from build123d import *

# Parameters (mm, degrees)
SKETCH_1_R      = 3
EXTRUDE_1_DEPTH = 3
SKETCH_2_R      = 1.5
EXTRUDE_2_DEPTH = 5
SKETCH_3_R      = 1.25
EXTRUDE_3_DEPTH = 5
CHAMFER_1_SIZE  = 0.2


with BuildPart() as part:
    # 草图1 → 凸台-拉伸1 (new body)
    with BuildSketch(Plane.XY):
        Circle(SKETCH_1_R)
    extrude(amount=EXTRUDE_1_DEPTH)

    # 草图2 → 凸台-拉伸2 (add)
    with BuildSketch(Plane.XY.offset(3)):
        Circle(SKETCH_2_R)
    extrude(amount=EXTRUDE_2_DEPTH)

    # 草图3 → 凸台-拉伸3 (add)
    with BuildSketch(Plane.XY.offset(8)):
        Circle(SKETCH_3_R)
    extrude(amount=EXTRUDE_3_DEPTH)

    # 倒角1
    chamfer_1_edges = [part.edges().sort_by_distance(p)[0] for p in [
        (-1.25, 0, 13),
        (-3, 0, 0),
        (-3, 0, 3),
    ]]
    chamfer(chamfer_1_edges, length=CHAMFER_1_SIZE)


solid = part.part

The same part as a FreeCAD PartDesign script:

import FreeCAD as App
import Part
import Sketcher
Q = App.Units.Quantity


def edges_at(feature, points):
    """Names of the edges that pass closest to the given points."""
    edges = feature.Shape.Edges
    near = lambda p: min(range(len(edges)), key=lambda i: edges[i].distToShape(Part.Vertex(*p))[0])
    return sorted({f"Edge{near(p) + 1}" for p in points})

doc = App.newDocument("Part")
body = doc.addObject("PartDesign::Body", "Body")

# Sketch on XY plane
sketch1 = body.newObject("Sketcher::SketchObject", "Sketch")
sketch1.AttachmentSupport = (doc.getObject("XY_Plane"), [""])
sketch1.MapMode = "FlatFace"
sketch1.addGeometry(Part.Circle(App.Vector(0, 0, 0), App.Vector(0, 0, 1), 3), False)
sketch1.addConstraint([
    Sketcher.Constraint("Coincident", 0, 3, -1, 1),
    Sketcher.Constraint("Diameter", 0, Q("6 mm")),
])
pad1 = body.newObject("PartDesign::Pad", "Pad")
pad1.Profile = sketch1
pad1.Length = 3

# Sketch on XY plane
sketch2 = body.newObject("Sketcher::SketchObject", "Sketch001")
sketch2.AttachmentSupport = (doc.getObject("XY_Plane"), [""])
sketch2.MapMode = "FlatFace"
sketch2.AttachmentOffset = App.Placement(App.Vector(0, 0, 3), App.Rotation())
sketch2.addGeometry(Part.Circle(App.Vector(0, 0, 0), App.Vector(0, 0, 1), 1.5), False)
sketch2.addConstraint([
    Sketcher.Constraint("Coincident", 0, 3, -1, 1),
    Sketcher.Constraint("Diameter", 0, Q("3 mm")),
])
pad2 = body.newObject("PartDesign::Pad", "Pad001")
pad2.Profile = sketch2
pad2.Length = 5

# Sketch on XY plane
sketch3 = body.newObject("Sketcher::SketchObject", "Sketch002")
sketch3.AttachmentSupport = (doc.getObject("XY_Plane"), [""])
sketch3.MapMode = "FlatFace"
sketch3.AttachmentOffset = App.Placement(App.Vector(0, 0, 8), App.Rotation())
sketch3.addGeometry(Part.Circle(App.Vector(0, 0, 0), App.Vector(0, 0, 1), 1.25), False)
sketch3.addConstraint([
    Sketcher.Constraint("Coincident", 0, 3, -1, 1),
    Sketcher.Constraint("Diameter", 0, Q("2.5 mm")),
])
pad3 = body.newObject("PartDesign::Pad", "Pad002")
pad3.Profile = sketch3
pad3.Length = 5
doc.recompute()

chamfer = body.newObject("PartDesign::Chamfer", "Chamfer")
chamfer.Base = (pad3, edges_at(pad3, [(-1.25, 0, 13), (-3, 0, 0), (-3, 0, 3)]))
chamfer.Size = 0.2

doc.recompute()
